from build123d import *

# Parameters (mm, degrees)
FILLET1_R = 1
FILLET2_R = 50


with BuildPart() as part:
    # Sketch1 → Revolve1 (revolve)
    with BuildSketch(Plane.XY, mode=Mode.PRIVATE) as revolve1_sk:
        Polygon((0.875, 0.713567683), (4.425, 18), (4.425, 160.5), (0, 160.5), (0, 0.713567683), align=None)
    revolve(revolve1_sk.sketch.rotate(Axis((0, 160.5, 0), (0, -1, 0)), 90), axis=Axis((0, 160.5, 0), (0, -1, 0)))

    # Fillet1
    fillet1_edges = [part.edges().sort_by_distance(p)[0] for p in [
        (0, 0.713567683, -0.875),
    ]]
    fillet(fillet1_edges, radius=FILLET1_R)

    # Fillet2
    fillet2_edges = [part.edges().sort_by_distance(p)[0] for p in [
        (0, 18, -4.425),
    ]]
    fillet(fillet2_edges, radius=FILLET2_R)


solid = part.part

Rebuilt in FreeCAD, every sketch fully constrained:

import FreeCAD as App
import Part
import Sketcher
Q = App.Units.Quantity


def edges_at(feature, points):
    """Names of the edges that pass closest to the given points."""
    edges = feature.Shape.Edges
    near = lambda p: min(range(len(edges)), key=lambda i: edges[i].distToShape(Part.Vertex(*p))[0])
    return sorted({f"Edge{near(p) + 1}" for p in points})

doc = App.newDocument("Part")
body = doc.addObject("PartDesign::Body", "Body")

sketch1 = body.newObject("Sketcher::SketchObject", "Sketch")
sketch1.AttachmentSupport = (doc.getObject("XY_Plane"), [""])
sketch1.MapMode = "FlatFace"
sketch1.addGeometry([
    Part.LineSegment(App.Vector(0.875, 0.713568, 0), App.Vector(4.425, 18, 0)),
    Part.LineSegment(App.Vector(4.425, 18, 0), App.Vector(4.425, 160.5, 0)),
    Part.LineSegment(App.Vector(4.425, 160.5, 0), App.Vector(0, 160.5, 0)),
    Part.LineSegment(App.Vector(0, 160.5, 0), App.Vector(0, 0.713568, 0)),
    Part.LineSegment(App.Vector(0, 0.713568, 0), App.Vector(0.875, 0.713568, 0)),
], False)
sketch1.addConstraint([
    Sketcher.Constraint("Coincident", 0, 2, 1, 1),
    Sketcher.Constraint("Coincident", 1, 2, 2, 1),
    Sketcher.Constraint("Coincident", 2, 2, 3, 1),
    Sketcher.Constraint("Coincident", 3, 2, 4, 1),
    Sketcher.Constraint("Coincident", 4, 2, 0, 1),
    Sketcher.Constraint("Vertical", 1),
    Sketcher.Constraint("Horizontal", 2),
    Sketcher.Constraint("Vertical", 3),
    Sketcher.Constraint("Horizontal", 4),
    Sketcher.Constraint("PointOnObject", 2, 2, -2),
    Sketcher.Constraint("DistanceY", 1, 1, 1, 2, Q("142.5 mm")),
    Sketcher.Constraint("DistanceY", -1, 1, 0, 2, Q("18 mm")),
    Sketcher.Constraint("DistanceX", 2, 2, 2, 1, Q("4.425 mm")),
    Sketcher.Constraint("DistanceX", 4, 1, 4, 2, Q("0.875 mm")),
    Sketcher.Constraint("DistanceY", 3, 2, 3, 1, Q("159.786432 mm")),
])
revolution = body.newObject("PartDesign::Revolution", "Revolution")
revolution.Profile = sketch1
revolution.ReferenceAxis = (sketch1, ["V_Axis"])
revolution.Angle = 360
doc.recompute()

fillet = body.newObject("PartDesign::Fillet", "Fillet")
fillet.Base = (revolution, edges_at(revolution, [(0, 0.714, -0.875)]))
fillet.Radius = 1
doc.recompute()

fillet2 = body.newObject("PartDesign::Fillet", "Fillet001")
fillet2.Base = (fillet, edges_at(fillet, [(0, 18, -4.425)]))
fillet2.Radius = 50

doc.recompute()
